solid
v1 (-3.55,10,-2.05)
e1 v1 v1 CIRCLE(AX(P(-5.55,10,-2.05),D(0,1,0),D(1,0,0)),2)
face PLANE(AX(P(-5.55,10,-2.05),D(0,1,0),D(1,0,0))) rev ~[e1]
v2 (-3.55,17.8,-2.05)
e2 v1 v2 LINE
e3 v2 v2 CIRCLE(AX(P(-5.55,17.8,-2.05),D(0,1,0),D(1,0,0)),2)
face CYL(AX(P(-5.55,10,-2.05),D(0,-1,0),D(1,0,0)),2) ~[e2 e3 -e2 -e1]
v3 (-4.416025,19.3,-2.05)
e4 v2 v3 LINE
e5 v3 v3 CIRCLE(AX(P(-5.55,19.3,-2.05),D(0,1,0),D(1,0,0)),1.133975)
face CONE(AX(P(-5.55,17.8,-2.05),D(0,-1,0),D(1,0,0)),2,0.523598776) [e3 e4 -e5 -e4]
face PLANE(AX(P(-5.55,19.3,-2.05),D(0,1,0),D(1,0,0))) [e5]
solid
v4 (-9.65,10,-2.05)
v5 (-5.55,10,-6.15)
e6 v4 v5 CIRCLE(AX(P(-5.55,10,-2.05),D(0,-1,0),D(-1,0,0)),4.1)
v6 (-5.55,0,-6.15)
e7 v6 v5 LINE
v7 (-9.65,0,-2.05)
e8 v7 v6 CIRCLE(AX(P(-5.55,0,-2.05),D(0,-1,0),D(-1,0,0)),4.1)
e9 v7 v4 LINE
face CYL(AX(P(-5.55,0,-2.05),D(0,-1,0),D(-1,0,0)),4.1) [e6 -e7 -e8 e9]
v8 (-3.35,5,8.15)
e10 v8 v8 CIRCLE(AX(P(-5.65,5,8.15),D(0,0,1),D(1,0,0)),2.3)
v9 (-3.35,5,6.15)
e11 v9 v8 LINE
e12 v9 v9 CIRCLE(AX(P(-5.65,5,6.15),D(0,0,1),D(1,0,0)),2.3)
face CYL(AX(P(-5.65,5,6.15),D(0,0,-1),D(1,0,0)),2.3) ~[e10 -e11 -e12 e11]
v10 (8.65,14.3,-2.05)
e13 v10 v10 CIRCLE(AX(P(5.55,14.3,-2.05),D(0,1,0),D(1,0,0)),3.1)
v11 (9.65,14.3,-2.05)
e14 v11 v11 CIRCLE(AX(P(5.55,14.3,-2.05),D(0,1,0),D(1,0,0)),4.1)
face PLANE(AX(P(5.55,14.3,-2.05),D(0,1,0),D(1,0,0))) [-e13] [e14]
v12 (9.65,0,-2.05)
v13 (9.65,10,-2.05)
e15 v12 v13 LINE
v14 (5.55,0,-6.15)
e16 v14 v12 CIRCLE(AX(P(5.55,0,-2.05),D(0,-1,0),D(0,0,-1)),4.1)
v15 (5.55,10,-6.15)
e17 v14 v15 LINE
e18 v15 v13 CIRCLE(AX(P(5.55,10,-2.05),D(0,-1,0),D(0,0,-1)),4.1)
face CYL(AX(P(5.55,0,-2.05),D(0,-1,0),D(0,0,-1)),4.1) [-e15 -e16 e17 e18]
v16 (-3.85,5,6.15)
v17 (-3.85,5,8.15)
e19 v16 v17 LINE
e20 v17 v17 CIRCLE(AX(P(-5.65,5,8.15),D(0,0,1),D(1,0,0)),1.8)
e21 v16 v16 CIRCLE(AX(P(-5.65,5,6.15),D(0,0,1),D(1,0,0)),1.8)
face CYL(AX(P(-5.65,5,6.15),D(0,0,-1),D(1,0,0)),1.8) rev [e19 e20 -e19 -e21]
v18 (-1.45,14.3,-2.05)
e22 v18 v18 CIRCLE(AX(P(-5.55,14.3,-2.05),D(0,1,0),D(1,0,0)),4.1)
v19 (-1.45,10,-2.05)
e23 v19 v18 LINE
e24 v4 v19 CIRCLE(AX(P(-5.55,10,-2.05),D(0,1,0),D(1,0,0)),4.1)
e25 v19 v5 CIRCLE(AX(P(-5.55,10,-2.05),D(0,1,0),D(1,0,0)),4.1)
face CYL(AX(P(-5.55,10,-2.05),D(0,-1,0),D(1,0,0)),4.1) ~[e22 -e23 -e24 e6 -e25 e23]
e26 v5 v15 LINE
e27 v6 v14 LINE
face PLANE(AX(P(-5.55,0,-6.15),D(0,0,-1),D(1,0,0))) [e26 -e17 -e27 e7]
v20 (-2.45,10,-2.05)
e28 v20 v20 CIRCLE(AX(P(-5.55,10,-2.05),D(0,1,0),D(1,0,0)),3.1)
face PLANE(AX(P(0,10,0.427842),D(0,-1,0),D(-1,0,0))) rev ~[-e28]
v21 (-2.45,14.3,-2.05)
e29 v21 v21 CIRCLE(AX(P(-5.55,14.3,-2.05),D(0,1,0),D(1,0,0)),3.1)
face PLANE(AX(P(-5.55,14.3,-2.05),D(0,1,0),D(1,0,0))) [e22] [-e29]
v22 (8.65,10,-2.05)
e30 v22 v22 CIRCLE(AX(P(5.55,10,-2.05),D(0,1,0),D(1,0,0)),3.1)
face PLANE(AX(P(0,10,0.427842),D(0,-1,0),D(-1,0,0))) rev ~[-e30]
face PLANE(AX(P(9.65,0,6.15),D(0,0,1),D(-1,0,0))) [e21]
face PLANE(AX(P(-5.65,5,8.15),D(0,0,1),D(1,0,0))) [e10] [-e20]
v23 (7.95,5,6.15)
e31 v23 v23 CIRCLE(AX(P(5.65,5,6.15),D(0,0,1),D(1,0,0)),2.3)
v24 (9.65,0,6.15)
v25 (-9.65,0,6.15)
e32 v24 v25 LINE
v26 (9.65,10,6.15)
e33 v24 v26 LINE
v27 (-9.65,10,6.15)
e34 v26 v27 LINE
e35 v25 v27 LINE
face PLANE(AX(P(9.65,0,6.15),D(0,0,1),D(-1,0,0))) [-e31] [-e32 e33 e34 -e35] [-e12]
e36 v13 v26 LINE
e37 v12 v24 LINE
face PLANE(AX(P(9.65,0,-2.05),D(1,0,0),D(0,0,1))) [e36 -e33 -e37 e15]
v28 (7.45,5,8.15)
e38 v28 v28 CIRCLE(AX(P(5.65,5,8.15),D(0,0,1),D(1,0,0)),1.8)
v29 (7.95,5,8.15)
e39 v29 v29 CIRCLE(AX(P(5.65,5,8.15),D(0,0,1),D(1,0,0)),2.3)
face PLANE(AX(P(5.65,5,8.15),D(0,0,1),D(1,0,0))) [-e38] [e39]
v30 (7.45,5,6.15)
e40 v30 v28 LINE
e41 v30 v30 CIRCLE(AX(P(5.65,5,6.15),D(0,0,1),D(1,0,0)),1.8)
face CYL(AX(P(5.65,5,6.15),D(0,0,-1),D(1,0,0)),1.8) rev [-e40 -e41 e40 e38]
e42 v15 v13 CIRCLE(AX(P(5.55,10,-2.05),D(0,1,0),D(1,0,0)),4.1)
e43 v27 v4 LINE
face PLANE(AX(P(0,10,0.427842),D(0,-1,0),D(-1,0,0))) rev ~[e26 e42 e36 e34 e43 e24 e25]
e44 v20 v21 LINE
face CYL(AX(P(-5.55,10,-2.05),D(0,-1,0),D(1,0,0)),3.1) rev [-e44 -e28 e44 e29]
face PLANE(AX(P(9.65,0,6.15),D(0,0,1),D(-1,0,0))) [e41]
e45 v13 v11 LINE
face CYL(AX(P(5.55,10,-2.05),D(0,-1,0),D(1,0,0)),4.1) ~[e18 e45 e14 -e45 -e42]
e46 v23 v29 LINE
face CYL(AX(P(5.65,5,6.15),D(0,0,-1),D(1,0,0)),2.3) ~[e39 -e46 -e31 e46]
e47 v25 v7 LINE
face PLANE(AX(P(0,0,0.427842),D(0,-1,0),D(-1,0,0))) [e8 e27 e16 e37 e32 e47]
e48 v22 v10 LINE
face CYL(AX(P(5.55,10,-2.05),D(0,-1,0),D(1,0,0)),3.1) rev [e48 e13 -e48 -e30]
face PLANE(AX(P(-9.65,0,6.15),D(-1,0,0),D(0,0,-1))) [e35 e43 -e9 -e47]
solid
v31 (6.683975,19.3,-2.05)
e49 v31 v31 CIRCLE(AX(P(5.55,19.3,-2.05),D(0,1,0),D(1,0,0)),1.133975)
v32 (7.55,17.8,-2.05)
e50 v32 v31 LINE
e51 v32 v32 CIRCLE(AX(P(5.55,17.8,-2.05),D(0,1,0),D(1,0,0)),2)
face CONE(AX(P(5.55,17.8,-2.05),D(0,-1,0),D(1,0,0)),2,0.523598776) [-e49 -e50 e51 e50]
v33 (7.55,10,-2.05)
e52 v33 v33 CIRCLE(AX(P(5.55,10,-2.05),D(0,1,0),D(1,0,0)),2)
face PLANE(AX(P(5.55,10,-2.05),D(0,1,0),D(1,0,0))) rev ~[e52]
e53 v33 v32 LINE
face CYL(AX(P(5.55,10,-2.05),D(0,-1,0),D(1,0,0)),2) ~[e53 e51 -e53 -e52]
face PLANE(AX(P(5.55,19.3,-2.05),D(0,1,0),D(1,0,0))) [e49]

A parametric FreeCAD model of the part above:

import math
import FreeCAD as App
import Part
import Sketcher
Q = App.Units.Quantity


def edges_at(feature, points):
    """Names of the edges that pass closest to the given points."""
    edges = feature.Shape.Edges
    near = lambda p: min(range(len(edges)), key=lambda i: edges[i].distToShape(Part.Vertex(*p))[0])
    return sorted({f"Edge{near(p) + 1}" for p in points})

doc = App.newDocument("Part")
body = doc.addObject("PartDesign::Body", "Body")

# Sketch on XZ plane
sketch1 = body.newObject("Sketcher::SketchObject", "Sketch")
sketch1.AttachmentSupport = (doc.getObject("XZ_Plane"), [""])
sketch1.MapMode = "FlatFace"
sketch1.addGeometry(Part.LineSegment(App.Vector(5.5, -6.2, 0), App.Vector(-5.5, -6.2, 0)), False)
sketch1.addGeometry(Part.ArcOfCircle(Part.Circle(App.Vector(-5.5, -2, 0), App.Vector(0, 0, 1), 4.1), math.radians(180), math.radians(270)), False)
sketch1.addGeometry(Part.LineSegment(App.Vector(-9.7, -2, 0), App.Vector(-9.7, 6.2, 0)), False)
sketch1.addGeometry(Part.LineSegment(App.Vector(-9.7, 6.2, 0), App.Vector(9.7, 6.2, 0)), False)
sketch1.addGeometry(Part.LineSegment(App.Vector(9.7, 6.2, 0), App.Vector(9.7, -2, 0)), False)
sketch1.addGeometry(Part.ArcOfCircle(Part.Circle(App.Vector(5.5, -2, 0), App.Vector(0, 0, 1), 4.1), math.radians(-90), math.radians(0)), False)
sketch1.addConstraint(Sketcher.Constraint("Tangent", 0, 2, 1, 2))
sketch1.addConstraint(Sketcher.Constraint("Tangent", 1, 1, 2, 1))
sketch1.addConstraint(Sketcher.Constraint("Coincident", 2, 2, 3, 1))
sketch1.addConstraint(Sketcher.Constraint("Coincident", 3, 2, 4, 1))
sketch1.addConstraint(Sketcher.Constraint("Tangent", 4, 2, 5, 2))
sketch1.addConstraint(Sketcher.Constraint("Tangent", 5, 1, 0, 1))
sketch1.addConstraint(Sketcher.Constraint("Horizontal", 0))
sketch1.addConstraint(Sketcher.Constraint("Vertical", 2))
sketch1.addConstraint(Sketcher.Constraint("Horizontal", 3))
sketch1.addConstraint(Sketcher.Constraint("Vertical", 4))
sketch1.addConstraint(Sketcher.Constraint("Equal", 1, 5))
sketch1.addConstraint(Sketcher.Constraint("Radius", 1, Q("4.1 mm")))
sketch1.addConstraint(Sketcher.Constraint("DistanceX", 0, 2, 0, 1, Q("11.1 mm")))
sketch1.addConstraint(Sketcher.Constraint("DistanceY", 2, 1, 2, 2, Q("8.2 mm")))
sketch1.addConstraint(Sketcher.Constraint("DistanceX", 1, 3, -1, 1, Q("5.55 mm")))
sketch1.addConstraint(Sketcher.Constraint("DistanceY", 1, 3, -1, 1, Q("2.05 mm")))
pad1 = body.newObject("PartDesign::Pad", "Pad")
pad1.Profile = sketch1
pad1.Length = 10
pad1.Reversed = True

# Sketch on XZ plane
sketch2 = body.newObject("Sketcher::SketchObject", "Sketch001")
sketch2.AttachmentSupport = (doc.getObject("XZ_Plane"), [""])
sketch2.MapMode = "FlatFace"
sketch2.AttachmentOffset = App.Placement(App.Vector(0, 0, -10), App.Rotation())
sketch2.addGeometry(Part.Circle(App.Vector(-5.5, -2, 0), App.Vector(0, 0, 1), 4.1), False)
sketch2.addGeometry(Part.Circle(App.Vector(-5.5, -2, 0), App.Vector(0, 0, 1), 3.1), False)
sketch2.addGeometry(Part.Circle(App.Vector(5.5, -2, 0), App.Vector(0, 0, 1), 4.1), False)
sketch2.addGeometry(Part.Circle(App.Vector(5.5, -2, 0), App.Vector(0, 0, 1), 3.1), False)
sketch2.addConstraint(Sketcher.Constraint("Coincident", 1, 3, 0, 3))
sketch2.addConstraint(Sketcher.Constraint("Coincident", 3, 3, 2, 3))
sketch2.addConstraint(Sketcher.Constraint("Equal", 0, 2))
sketch2.addConstraint(Sketcher.Constraint("Equal", 1, 3))
sketch2.addConstraint(Sketcher.Constraint("Symmetric", 0, 3, 2, 3, -2))
sketch2.addConstraint(Sketcher.Constraint("Diameter", 0, Q("8.2 mm")))
sketch2.addConstraint(Sketcher.Constraint("Diameter", 1, Q("6.2 mm")))
sketch2.addConstraint(Sketcher.Constraint("DistanceX", 0, 3, 2, 3, Q("11.1 mm")))
sketch2.addConstraint(Sketcher.Constraint("DistanceY", 0, 3, -1, 1, Q("2.05 mm")))
pad2 = body.newObject("PartDesign::Pad", "Pad001")
pad2.Profile = sketch2
pad2.Length = 4.3
pad2.Reversed = True

# Sketch on XY plane
sketch3 = body.newObject("Sketcher::SketchObject", "Sketch002")
sketch3.AttachmentSupport = (doc.getObject("XY_Plane"), [""])
sketch3.MapMode = "FlatFace"
sketch3.AttachmentOffset = App.Placement(App.Vector(0, 0, 6.15), App.Rotation())
sketch3.addGeometry(Part.Circle(App.Vector(-5.7, 5, 0), App.Vector(0, 0, 1), 2.3), False)
sketch3.addGeometry(Part.Circle(App.Vector(-5.7, 5, 0), App.Vector(0, 0, 1), 1.8), False)
sketch3.addGeometry(Part.Circle(App.Vector(5.7, 5, 0), App.Vector(0, 0, 1), 2.3), False)
sketch3.addGeometry(Part.Circle(App.Vector(5.7, 5, 0), App.Vector(0, 0, 1), 1.8), False)
sketch3.addConstraint(Sketcher.Constraint("Coincident", 1, 3, 0, 3))
sketch3.addConstraint(Sketcher.Constraint("Coincident", 3, 3, 2, 3))
sketch3.addConstraint(Sketcher.Constraint("Equal", 0, 2))
sketch3.addConstraint(Sketcher.Constraint("Equal", 1, 3))
sketch3.addConstraint(Sketcher.Constraint("Symmetric", 0, 3, 2, 3, -2))
sketch3.addConstraint(Sketcher.Constraint("Diameter", 0, Q("4.6 mm")))
sketch3.addConstraint(Sketcher.Constraint("Diameter", 1, Q("3.6 mm")))
sketch3.addConstraint(Sketcher.Constraint("DistanceY", -1, 1, 0, 3, Q("5 mm")))
sketch3.addConstraint(Sketcher.Constraint("DistanceX", 0, 3, 2, 3, Q("11.3 mm")))
pad3 = body.newObject("PartDesign::Pad", "Pad002")
pad3.Profile = sketch3
pad3.Length = 2
body2 = doc.addObject("PartDesign::Body", "Body001")

# Sketch on XZ plane
sketch4 = body2.newObject("Sketcher::SketchObject", "Sketch003")
sketch4.AttachmentSupport = (doc.getObject("XZ_Plane001"), [""])
sketch4.MapMode = "FlatFace"
sketch4.AttachmentOffset = App.Placement(App.Vector(0, 0, -10), App.Rotation())
sketch4.addGeometry(Part.Circle(App.Vector(-5.5, -2, 0), App.Vector(0, 0, 1), 2), False)
sketch4.addConstraint(Sketcher.Constraint("Diameter", 0, Q("4 mm")))
sketch4.addConstraint(Sketcher.Constraint("DistanceX", 0, 3, -1, 1, Q("5.55 mm")))
sketch4.addConstraint(Sketcher.Constraint("DistanceY", 0, 3, -1, 1, Q("2.05 mm")))
pad4 = body2.newObject("PartDesign::Pad", "Pad003")
pad4.Profile = sketch4
pad4.Length = 9.3
pad4.Reversed = True
doc.recompute()

chamfer = body2.newObject("PartDesign::Chamfer", "Chamfer")
chamfer.Base = (pad4, edges_at(pad4, [(-7.55, 19.3, -2.05)]))
chamfer.ChamferType = "Two distances"
chamfer.Size = 1.5
chamfer.Size2 = 0.866025
body3 = doc.addObject("PartDesign::Body", "Body002")

# Sketch on XZ plane
sketch5 = body3.newObject("Sketcher::SketchObject", "Sketch004")
sketch5.AttachmentSupport = (doc.getObject("XZ_Plane002"), [""])
sketch5.MapMode = "FlatFace"
sketch5.AttachmentOffset = App.Placement(App.Vector(0, 0, -10), App.Rotation())
sketch5.addGeometry(Part.Circle(App.Vector(5.5, -2, 0), App.Vector(0, 0, 1), 2), False)
sketch5.addConstraint(Sketcher.Constraint("Diameter", 0, Q("4 mm")))
sketch5.addConstraint(Sketcher.Constraint("DistanceX", -1, 1, 0, 3, Q("5.55 mm")))
sketch5.addConstraint(Sketcher.Constraint("DistanceY", 0, 3, -1, 1, Q("2.05 mm")))
pad5 = body3.newObject("PartDesign::Pad", "Pad004")
pad5.Profile = sketch5
pad5.Length = 9.3
pad5.Reversed = True
doc.recompute()

chamfer2 = body3.newObject("PartDesign::Chamfer", "Chamfer001")
chamfer2.Base = (pad5, edges_at(pad5, [(3.55, 19.3, -2.05)]))
chamfer2.ChamferType = "Two distances"
chamfer2.Size = 1.5
chamfer2.Size2 = 0.866025

doc.recompute()
